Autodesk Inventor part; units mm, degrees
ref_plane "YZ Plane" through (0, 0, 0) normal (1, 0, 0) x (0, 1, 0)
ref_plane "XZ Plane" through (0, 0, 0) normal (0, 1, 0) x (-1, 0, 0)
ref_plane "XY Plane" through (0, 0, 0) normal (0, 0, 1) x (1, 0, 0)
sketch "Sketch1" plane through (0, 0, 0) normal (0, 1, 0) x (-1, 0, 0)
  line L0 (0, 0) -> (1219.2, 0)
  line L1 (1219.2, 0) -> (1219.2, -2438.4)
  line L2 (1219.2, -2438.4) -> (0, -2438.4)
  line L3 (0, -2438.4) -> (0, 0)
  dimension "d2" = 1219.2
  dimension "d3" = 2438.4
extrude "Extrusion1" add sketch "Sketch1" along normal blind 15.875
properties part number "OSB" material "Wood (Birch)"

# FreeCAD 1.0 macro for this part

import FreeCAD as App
import Part
import Sketcher

V = App.Vector
Q = App.Units.Quantity


def add_polygon(sketch, points):
    """Adds a closed chain of lines whose ends are joined by coincident constraints."""
    first, n = sketch.GeometryCount, len(points)
    for a, b in zip(points, points[1:] + points[:1]):
        sketch.addGeometry(Part.LineSegment(App.Vector(*a, 0), App.Vector(*b, 0)), False)
    for i in range(n):
        sketch.addConstraint(Sketcher.Constraint("Coincident", first + i, 2, first + (i + 1) % n, 1))

doc = App.newDocument("Part")
params = doc.addObject("Spreadsheet::Sheet", "Params")
for row, (alias, value) in enumerate([
    ("sketch1_width", "48 in"),
    ("sketch1_height", "96 in"),
    ("pad1_length", "0.625 in"),
], start=1):
    params.set(f"A{row}", alias)
    params.set(f"B{row}", "=" + value)
    params.setAlias(f"B{row}", alias)

body = doc.addObject("PartDesign::Body", "Body")

sketch1 = body.newObject("Sketcher::SketchObject", "Sketch")
sketch1.AttachmentSupport = (doc.getObject("XZ_Plane"), [""])
sketch1.MapMode = "FlatFace"
add_polygon(sketch1, [(-1219, 0), (0, 0), (0, -2438), (-1219, -2438)])
sketch1.addConstraint([
    Sketcher.Constraint("Horizontal", 0),
    Sketcher.Constraint("Vertical", 1),
    Sketcher.Constraint("Horizontal", 2),
    Sketcher.Constraint("Vertical", 3),
    Sketcher.Constraint("Coincident", 0, 2, -1, 1),
    Sketcher.Constraint("DistanceX", 0, 1, 0, 2, Q("48 in")),
    Sketcher.Constraint("DistanceY", 1, 2, 1, 1, Q("96 in")),
])
sketch1.setExpression("Constraints[9]", "Params.sketch1_width")
sketch1.setExpression("Constraints[10]", "Params.sketch1_height")
pad1 = body.newObject("PartDesign::Pad", "Pad")
pad1.Profile = sketch1
pad1.setExpression("Length", "Params.pad1_length")
pad1.Reversed = True

doc.recompute()
